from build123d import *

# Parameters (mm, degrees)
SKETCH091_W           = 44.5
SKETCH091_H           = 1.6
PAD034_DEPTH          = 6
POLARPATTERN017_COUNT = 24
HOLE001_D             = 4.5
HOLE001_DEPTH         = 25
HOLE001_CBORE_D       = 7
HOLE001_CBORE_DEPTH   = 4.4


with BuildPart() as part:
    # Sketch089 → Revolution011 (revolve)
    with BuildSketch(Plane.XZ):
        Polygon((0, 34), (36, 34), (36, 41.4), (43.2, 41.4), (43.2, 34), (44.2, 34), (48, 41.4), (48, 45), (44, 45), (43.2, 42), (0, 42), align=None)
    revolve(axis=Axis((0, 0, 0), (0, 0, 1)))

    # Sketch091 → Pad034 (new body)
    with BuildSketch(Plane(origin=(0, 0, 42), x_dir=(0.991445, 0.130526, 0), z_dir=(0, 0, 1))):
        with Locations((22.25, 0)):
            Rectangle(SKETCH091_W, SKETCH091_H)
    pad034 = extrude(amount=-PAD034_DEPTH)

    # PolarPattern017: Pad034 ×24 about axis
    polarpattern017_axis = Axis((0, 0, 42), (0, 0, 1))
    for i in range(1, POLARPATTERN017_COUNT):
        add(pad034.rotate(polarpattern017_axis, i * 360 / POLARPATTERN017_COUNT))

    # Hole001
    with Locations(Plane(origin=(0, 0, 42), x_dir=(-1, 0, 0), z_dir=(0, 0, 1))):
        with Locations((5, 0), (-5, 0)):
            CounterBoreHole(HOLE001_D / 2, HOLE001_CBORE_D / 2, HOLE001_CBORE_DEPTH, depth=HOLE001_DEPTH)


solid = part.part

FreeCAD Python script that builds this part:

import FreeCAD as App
import Part
import Sketcher

V = App.Vector
Q = App.Units.Quantity

doc = App.newDocument("Part")
body = doc.addObject("PartDesign::Body", "Body")

sketch1 = body.newObject("Sketcher::SketchObject", "Sketch")
sketch1.AttachmentSupport = (doc.getObject("XZ_Plane"), [""])
sketch1.MapMode = "FlatFace"
sketch1.addGeometry([
    Part.LineSegment(V(0, 34, 0), V(36, 34, 0)),
    Part.LineSegment(V(36, 34, 0), V(36, 41.4, 0)),
    Part.LineSegment(V(36, 41.4, 0), V(43.2, 41.4, 0)),
    Part.LineSegment(V(43.2, 41.4, 0), V(43.2, 34, 0)),
    Part.LineSegment(V(43.2, 34, 0), V(44.2, 34, 0)),
    Part.LineSegment(V(44.2, 34, 0), V(48, 41.4, 0)),
    Part.LineSegment(V(48, 41.4, 0), V(48, 45, 0)),
    Part.LineSegment(V(48, 45, 0), V(44, 45, 0)),
    Part.LineSegment(V(44, 45, 0), V(43.2, 42, 0)),
    Part.LineSegment(V(43.2, 42, 0), V(0, 42, 0)),
    Part.LineSegment(V(0, 42, 0), V(0, 34, 0)),
], False)
sketch1.addConstraint([
    Sketcher.Constraint("Coincident", 0, 2, 1, 1),
    Sketcher.Constraint("Coincident", 1, 2, 2, 1),
    Sketcher.Constraint("Coincident", 2, 2, 3, 1),
    Sketcher.Constraint("Coincident", 3, 2, 4, 1),
    Sketcher.Constraint("Coincident", 4, 2, 5, 1),
    Sketcher.Constraint("Coincident", 5, 2, 6, 1),
    Sketcher.Constraint("Coincident", 6, 2, 7, 1),
    Sketcher.Constraint("Coincident", 7, 2, 8, 1),
    Sketcher.Constraint("Coincident", 8, 2, 9, 1),
    Sketcher.Constraint("Coincident", 9, 2, 10, 1),
    Sketcher.Constraint("Coincident", 10, 2, 0, 1),
    Sketcher.Constraint("Horizontal", 0),
    Sketcher.Constraint("Vertical", 1),
    Sketcher.Constraint("Horizontal", 2),
    Sketcher.Constraint("Vertical", 3),
    Sketcher.Constraint("Horizontal", 4),
    Sketcher.Constraint("Vertical", 6),
    Sketcher.Constraint("Horizontal", 7),
    Sketcher.Constraint("Horizontal", 9),
    Sketcher.Constraint("Vertical", 10),
    Sketcher.Constraint("PointOnObject", 9, 2, -2),
    Sketcher.Constraint("Horizontal", 0, 2, 3, 2),
    Sketcher.Constraint("Horizontal", 2, 2, 5, 2),
    Sketcher.Constraint("Vertical", 3, 2, 8, 2),
    Sketcher.Constraint("DistanceX", 0, 1, 0, 2, Q("36 mm")),
    Sketcher.Constraint("DistanceX", 4, 1, 4, 2, Q("1 mm")),
    Sketcher.Constraint("DistanceX", 7, 2, 7, 1, Q("4 mm")),
    Sketcher.Constraint("DistanceY", 10, 2, 10, 1, Q("8 mm")),
    Sketcher.Constraint("DistanceX", 2, 1, 2, 2, Q("7.2 mm")),
    Sketcher.Constraint("DistanceY", 1, 1, 1, 2, Q("7.4 mm")),
    Sketcher.Constraint("DistanceY", 6, 1, 6, 2, Q("3.6 mm")),
    Sketcher.Constraint("DistanceY", -1, 1, 0, 2, Q("34 mm")),
    Sketcher.Constraint("DistanceX", -1, 1, 5, 2, Q("48 mm")),
])
revolution = body.newObject("PartDesign::Revolution", "Revolution")
revolution.Profile = sketch1
revolution.ReferenceAxis = (sketch1, ["V_Axis"])
revolution.Angle = 360

sketch2 = body.newObject("Sketcher::SketchObject", "Sketch001")
sketch2.AttachmentSupport = (doc.getObject("XY_Plane"), [""])
sketch2.MapMode = "FlatFace"
sketch2.AttachmentOffset = App.Placement(V(0, 0, 42), App.Rotation())
sketch2.addGeometry([
    Part.LineSegment(V(-0.104421, 0.793156, 0), V(0.104421, -0.793156, 0)),
    Part.LineSegment(V(0.104421, -0.793156, 0), V(44.223718, 5.01525, 0)),
    Part.LineSegment(V(44.223718, 5.01525, 0), V(44.014877, 6.601562, 0)),
    Part.LineSegment(V(44.014877, 6.601562, 0), V(-0.104421, 0.793156, 0)),
], False)
sketch2.addConstraint([
    Sketcher.Constraint("Coincident", 0, 2, 1, 1),
    Sketcher.Constraint("Coincident", 1, 2, 2, 1),
    Sketcher.Constraint("Coincident", 2, 2, 3, 1),
    Sketcher.Constraint("Coincident", 3, 2, 0, 1),
    Sketcher.Constraint("Symmetric", 0, 2, 3, 2, -1, 1),
    Sketcher.Constraint("Perpendicular", 0, 1),
    Sketcher.Constraint("Perpendicular", 1, 2),
    Sketcher.Constraint("Perpendicular", 2, 3),
    Sketcher.Constraint("Angle", 0, Q("-82.500012 deg")),
    Sketcher.Constraint("Distance", 0, Q("1.6 mm")),
    Sketcher.Constraint("Distance", 1, Q("44.5 mm")),
])
pad1 = body.newObject("PartDesign::Pad", "Pad")
pad1.Profile = sketch2
pad1.Length = 6
pad1.Reversed = True
doc.recompute()

polarpattern = body.newObject("PartDesign::PolarPattern", "PolarPattern")
polarpattern.Originals = [pad1]
polarpattern.Axis = (doc.getObject("Z_Axis"), [""])
polarpattern.Angle = 360
polarpattern.Occurrences = 24
body.Tip = polarpattern

sketch3 = body.newObject("Sketcher::SketchObject", "Sketch002")
sketch3.AttachmentSupport = (doc.getObject("XY_Plane"), [""])
sketch3.MapMode = "FlatFace"
sketch3.AttachmentOffset = App.Placement(V(0, 0, 42), App.Rotation())
sketch3.addGeometry([
    Part.Circle(V(-5, 0, 0), V(0, 0, 1), 2.25),
    Part.Circle(V(5, 0, 0), V(0, 0, 1), 2.25),
], False)
sketch3.addConstraint([
    Sketcher.Constraint("Equal", 0, 1),
    Sketcher.Constraint("Symmetric", 0, 3, 1, 3, -1, 1),
    Sketcher.Constraint("PointOnObject", 0, 3, -1),
    Sketcher.Constraint("Diameter", 0, Q("4.5 mm")),
    Sketcher.Constraint("DistanceX", 0, 3, -1, 1, Q("5 mm")),
])
doc.recompute()
hole = body.newObject("PartDesign::Hole", "Hole")
hole.Profile = sketch3
hole.ThreadType = "None"
hole.Diameter = 4.5
hole.DepthType = "Dimension"
hole.Depth = 25
hole.DrillPoint = "Flat"
hole.HoleCutType = "Counterbore"
hole.HoleCutDiameter = 7
hole.HoleCutDepth = 4.4

doc.recompute()
